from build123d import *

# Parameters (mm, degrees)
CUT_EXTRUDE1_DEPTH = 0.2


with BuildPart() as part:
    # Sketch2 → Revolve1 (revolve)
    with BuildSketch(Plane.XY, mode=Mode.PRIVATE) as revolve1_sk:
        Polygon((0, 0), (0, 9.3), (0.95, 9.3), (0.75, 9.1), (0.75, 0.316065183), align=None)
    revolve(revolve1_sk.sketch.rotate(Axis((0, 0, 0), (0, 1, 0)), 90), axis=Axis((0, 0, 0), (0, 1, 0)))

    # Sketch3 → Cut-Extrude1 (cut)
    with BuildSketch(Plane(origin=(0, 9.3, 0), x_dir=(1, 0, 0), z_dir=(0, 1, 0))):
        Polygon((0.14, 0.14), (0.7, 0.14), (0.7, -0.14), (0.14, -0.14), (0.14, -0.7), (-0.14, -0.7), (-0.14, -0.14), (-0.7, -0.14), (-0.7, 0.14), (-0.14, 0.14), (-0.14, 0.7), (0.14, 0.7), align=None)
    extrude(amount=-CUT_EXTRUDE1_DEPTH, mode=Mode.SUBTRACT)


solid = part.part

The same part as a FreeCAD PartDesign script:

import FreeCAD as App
import Part
import Sketcher
Q = App.Units.Quantity


def add_polygon(sketch, points):
    """Adds a closed chain of lines whose ends are joined by coincident constraints."""
    first, n = sketch.GeometryCount, len(points)
    for a, b in zip(points, points[1:] + points[:1]):
        sketch.addGeometry(Part.LineSegment(App.Vector(*a, 0), App.Vector(*b, 0)), False)
    for i in range(n):
        sketch.addConstraint(Sketcher.Constraint("Coincident", first + i, 2, first + (i + 1) % n, 1))

doc = App.newDocument("Part")
body = doc.addObject("PartDesign::Body", "Body")

# Sketch on XY plane
sketch1 = body.newObject("Sketcher::SketchObject", "Sketch")
sketch1.AttachmentSupport = (doc.getObject("XY_Plane"), [""])
sketch1.MapMode = "FlatFace"
add_polygon(sketch1, [(0, 9.3), (0, 0), (0.75, 0.32), (0.75, 9.1), (0.95, 9.3)])  # lines 0-4
sketch1.addConstraint(Sketcher.Constraint("Vertical", 0))
sketch1.addConstraint(Sketcher.Constraint("Vertical", 2))
sketch1.addConstraint(Sketcher.Constraint("Horizontal", 4))
sketch1.addConstraint(Sketcher.Constraint("Coincident", 0, 2, -1, 1))
sketch1.addConstraint(Sketcher.Constraint("Angle", 3, Q("45 deg")))
sketch1.addConstraint(Sketcher.Constraint("DistanceY", 0, 2, 0, 1, 9.3))
sketch1.addConstraint(Sketcher.Constraint("DistanceX", 4, 2, 4, 1, 0.95))
sketch1.addConstraint(Sketcher.Constraint("DistanceY", -1, 1, 2, 2, 9.1))
sketch1.addConstraint(Sketcher.Constraint("DistanceY", 2, 1, 2, 2, 8.783935))
revolution = body.newObject("PartDesign::Revolution", "Revolution")
revolution.Profile = sketch1
revolution.ReferenceAxis = (sketch1, ["V_Axis"])
revolution.Angle = 360

# Sketch on XZ plane
sketch2 = body.newObject("Sketcher::SketchObject", "Sketch001")
sketch2.AttachmentSupport = (doc.getObject("XZ_Plane"), [""])
sketch2.MapMode = "FlatFace"
sketch2.AttachmentOffset = App.Placement(App.Vector(0, 0, -9.3), App.Rotation())
add_polygon(sketch2, [(0.7, -0.14), (0.14, -0.14), (0.14, -0.7), (-0.14, -0.7), (-0.14, -0.14), (-0.7, -0.14), (-0.7, 0.14), (-0.14, 0.14), (-0.14, 0.7), (0.14, 0.7), (0.14, 0.14), (0.7, 0.14)])  # lines 0-11
sketch2.addConstraint(Sketcher.Constraint("Horizontal", 0))
sketch2.addConstraint(Sketcher.Constraint("Vertical", 1))
sketch2.addConstraint(Sketcher.Constraint("Horizontal", 2))
sketch2.addConstraint(Sketcher.Constraint("Vertical", 3))
sketch2.addConstraint(Sketcher.Constraint("Horizontal", 4))
sketch2.addConstraint(Sketcher.Constraint("Vertical", 5))
sketch2.addConstraint(Sketcher.Constraint("Horizontal", 6))
sketch2.addConstraint(Sketcher.Constraint("Vertical", 7))
sketch2.addConstraint(Sketcher.Constraint("Horizontal", 8))
sketch2.addConstraint(Sketcher.Constraint("Vertical", 9))
sketch2.addConstraint(Sketcher.Constraint("Horizontal", 10))
sketch2.addConstraint(Sketcher.Constraint("Vertical", 11))
sketch2.addConstraint(Sketcher.Constraint("Symmetric", 0, 2, 6, 2, -1, 1))
sketch2.addConstraint(Sketcher.Constraint("Symmetric", 2, 2, 8, 2, -1, 1))
sketch2.addConstraint(Sketcher.Constraint("Symmetric", 4, 2, 10, 2, -1, 1))
sketch2.addConstraint(Sketcher.Constraint("Symmetric", 0, 2, 3, 2, -2))
sketch2.addConstraint(Sketcher.Constraint("Equal", 10, 1))
sketch2.addConstraint(Sketcher.Constraint("Equal", 8, 5))
sketch2.addConstraint(Sketcher.Constraint("DistanceX", 0, 2, 0, 1, 0.56))
sketch2.addConstraint(Sketcher.Constraint("DistanceX", 2, 2, 2, 1, 0.28))
pocket1 = body.newObject("PartDesign::Pocket", "Pocket")
pocket1.Profile = sketch2
pocket1.Length = 0.2
pocket1.Reversed = True

doc.recompute()
